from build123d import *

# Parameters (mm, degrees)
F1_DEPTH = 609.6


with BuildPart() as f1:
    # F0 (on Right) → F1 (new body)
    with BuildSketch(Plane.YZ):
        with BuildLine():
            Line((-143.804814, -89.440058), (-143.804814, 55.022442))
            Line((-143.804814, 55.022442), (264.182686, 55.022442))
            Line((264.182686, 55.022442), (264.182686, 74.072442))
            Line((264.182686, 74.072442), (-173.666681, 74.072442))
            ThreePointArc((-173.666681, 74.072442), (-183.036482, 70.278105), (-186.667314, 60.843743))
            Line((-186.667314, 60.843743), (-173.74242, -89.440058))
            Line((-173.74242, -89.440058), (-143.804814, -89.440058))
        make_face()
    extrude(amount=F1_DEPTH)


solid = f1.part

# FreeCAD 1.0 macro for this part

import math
import FreeCAD as App
import Part
import Sketcher
from FreeCAD import Vector
Q = App.Units.Quantity

doc = App.newDocument("Part")
body = doc.addObject("PartDesign::Body", "Body")

# Sketch on YZ plane
sketch1 = body.newObject("Sketcher::SketchObject", "Sketch")
sketch1.AttachmentSupport = (doc.getObject("YZ_Plane"), [""])
sketch1.MapMode = "FlatFace"
sketch1.addGeometry([
    Part.LineSegment(Vector(-144, -89, 0), Vector(-144, 55, 0)),  # 0
    Part.LineSegment(Vector(-144, 55, 0), Vector(264, 55, 0)),  # 1
    Part.LineSegment(Vector(264, 55, 0), Vector(264, 74, 0)),  # 2
    Part.LineSegment(Vector(264, 74, 0), Vector(-174, 74, 0)),  # 3
    Part.ArcOfCircle(Part.Circle(Vector(-174, 61, 0), Vector(0, 0, 1), 13), math.radians(89), math.radians(182)),  # 4
    Part.LineSegment(Vector(-187, 61, 0), Vector(-174, -89, 0)),  # 5
    Part.LineSegment(Vector(-174, -89, 0), Vector(-144, -89, 0)),  # 6
], False)
sketch1.addConstraint([
    Sketcher.Constraint("Coincident", 0, 2, 1, 1),
    Sketcher.Constraint("Coincident", 1, 2, 2, 1),
    Sketcher.Constraint("Coincident", 2, 2, 3, 1),
    Sketcher.Constraint("Coincident", 3, 2, 4, 1),
    Sketcher.Constraint("Coincident", 4, 2, 5, 1),
    Sketcher.Constraint("Coincident", 5, 2, 6, 1),
    Sketcher.Constraint("Coincident", 6, 2, 0, 1),
    Sketcher.Constraint("Vertical", 0),
    Sketcher.Constraint("Horizontal", 1),
    Sketcher.Constraint("Vertical", 2),
    Sketcher.Constraint("Horizontal", 3),
    Sketcher.Constraint("Horizontal", 6),
    Sketcher.Constraint("Radius", 4, Q("0.5 in")),
    Sketcher.Constraint("DistanceY", 2, 1, 2, 2, Q("0.75 in")),
    Sketcher.Constraint("DistanceX", 1, 1, 1, 2, Q("16.0625 in")),
    Sketcher.Constraint("DistanceY", 0, 1, 0, 2, Q("5.6875 in")),
    Sketcher.Constraint("DistanceX", 4, 2, 1, 2, Q("17.75 in")),
    Sketcher.Constraint("DistanceY", 4, 2, 3, 2, Q("13.228699 mm")),
    Sketcher.Constraint("Distance", 5, Q("150.838568 mm")),
    Sketcher.Constraint("DistanceX", 3, 2, 3, 1, Q("437.849367 mm")),
    Sketcher.Constraint("DistanceY", -1, 1, 4, 3, Q("61.37627 mm")),
    Sketcher.Constraint("DistanceX", 3, 2, -1, 1, Q("173.666681 mm")),
])
pad1 = body.newObject("PartDesign::Pad", "Pad")
pad1.Profile = sketch1
pad1.Length = Q("24 in")

doc.recompute()
